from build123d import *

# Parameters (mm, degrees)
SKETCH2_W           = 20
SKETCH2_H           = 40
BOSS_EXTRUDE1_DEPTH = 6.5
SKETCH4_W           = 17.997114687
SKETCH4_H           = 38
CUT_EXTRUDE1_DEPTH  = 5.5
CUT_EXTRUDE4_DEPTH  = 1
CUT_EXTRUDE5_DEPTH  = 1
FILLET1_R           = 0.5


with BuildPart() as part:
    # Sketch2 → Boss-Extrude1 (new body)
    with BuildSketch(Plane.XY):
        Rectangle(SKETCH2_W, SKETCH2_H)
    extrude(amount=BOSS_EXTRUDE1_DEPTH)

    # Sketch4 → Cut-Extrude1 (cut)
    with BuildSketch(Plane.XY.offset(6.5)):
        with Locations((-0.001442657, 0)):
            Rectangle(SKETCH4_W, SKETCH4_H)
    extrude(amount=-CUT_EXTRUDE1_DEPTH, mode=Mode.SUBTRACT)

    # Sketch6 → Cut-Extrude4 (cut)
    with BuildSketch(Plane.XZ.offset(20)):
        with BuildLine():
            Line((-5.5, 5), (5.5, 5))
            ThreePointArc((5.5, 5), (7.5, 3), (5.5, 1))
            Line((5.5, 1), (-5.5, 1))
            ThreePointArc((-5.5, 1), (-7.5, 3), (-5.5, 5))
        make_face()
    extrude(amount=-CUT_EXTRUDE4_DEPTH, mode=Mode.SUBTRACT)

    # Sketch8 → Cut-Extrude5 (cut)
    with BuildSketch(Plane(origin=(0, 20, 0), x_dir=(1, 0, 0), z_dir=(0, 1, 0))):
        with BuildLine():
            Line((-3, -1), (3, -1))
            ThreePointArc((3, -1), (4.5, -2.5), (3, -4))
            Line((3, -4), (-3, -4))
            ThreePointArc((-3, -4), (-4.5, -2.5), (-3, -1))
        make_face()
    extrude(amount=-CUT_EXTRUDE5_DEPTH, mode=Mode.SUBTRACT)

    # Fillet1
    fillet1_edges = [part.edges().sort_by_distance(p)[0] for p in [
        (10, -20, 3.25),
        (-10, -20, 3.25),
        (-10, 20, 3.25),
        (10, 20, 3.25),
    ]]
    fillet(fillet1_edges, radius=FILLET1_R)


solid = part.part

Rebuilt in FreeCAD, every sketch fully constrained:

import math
import FreeCAD as App
import Part
import Sketcher
Q = App.Units.Quantity


def edges_at(feature, points):
    """Names of the edges that pass closest to the given points."""
    edges = feature.Shape.Edges
    near = lambda p: min(range(len(edges)), key=lambda i: edges[i].distToShape(Part.Vertex(*p))[0])
    return sorted({f"Edge{near(p) + 1}" for p in points})


def add_polygon(sketch, points):
    """Adds a closed chain of lines whose ends are joined by coincident constraints."""
    first, n = sketch.GeometryCount, len(points)
    for a, b in zip(points, points[1:] + points[:1]):
        sketch.addGeometry(Part.LineSegment(App.Vector(*a, 0), App.Vector(*b, 0)), False)
    for i in range(n):
        sketch.addConstraint(Sketcher.Constraint("Coincident", first + i, 2, first + (i + 1) % n, 1))

doc = App.newDocument("Part")
params = doc.addObject("Spreadsheet::Sheet", "Params")
for row, (alias, value) in enumerate([
    ("sketch1_width", "20 mm"),
    ("sketch1_height", "40 mm"),
    ("pad1_length", "6.5 mm"),
    ("sketch2_height", "38 mm"),
    ("pocket1_length", "5.5 mm"),
    ("sketch3_radius", "2 mm"),
    ("sketch3_width", "11 mm"),
    ("pocket2_length", "1 mm"),
    ("sketch4_radius", "1.5 mm"),
    ("sketch4_width", "6 mm"),
    ("pocket3_length", "1 mm"),
    ("fillet_radius", "0.5 mm"),
], start=1):
    params.set(f"A{row}", alias)
    params.set(f"B{row}", "=" + value)
    params.setAlias(f"B{row}", alias)

body = doc.addObject("PartDesign::Body", "Body")

# Sketch on XY plane
sketch1 = body.newObject("Sketcher::SketchObject", "Sketch")
sketch1.AttachmentSupport = (doc.getObject("XY_Plane"), [""])
sketch1.MapMode = "FlatFace"
add_polygon(sketch1, [(-10, 20), (-10, -20), (10, -20), (10, 20)])  # lines 0-3
sketch1.addConstraint([
    Sketcher.Constraint("Vertical", 0),
    Sketcher.Constraint("Horizontal", 1),
    Sketcher.Constraint("Vertical", 2),
    Sketcher.Constraint("Horizontal", 3),
    Sketcher.Constraint("Symmetric", 0, 2, 2, 2, -1, 1),
    Sketcher.Constraint("DistanceX", 1, 1, 1, 2, Q("20 mm")),
    Sketcher.Constraint("DistanceY", 0, 2, 0, 1, Q("40 mm")),
])
sketch1.setExpression("Constraints[9]", "Params.sketch1_width")
sketch1.setExpression("Constraints[10]", "Params.sketch1_height")
pad1 = body.newObject("PartDesign::Pad", "Pad")
pad1.Profile = sketch1
pad1.setExpression("Length", "Params.pad1_length")

# Sketch on XY plane
sketch2 = body.newObject("Sketcher::SketchObject", "Sketch001")
sketch2.AttachmentSupport = (doc.getObject("XY_Plane"), [""])
sketch2.MapMode = "FlatFace"
sketch2.AttachmentOffset = App.Placement(App.Vector(0, 0, 6.5), App.Rotation())
add_polygon(sketch2, [(-9, 19), (-9, -19), (9, -19), (9, 19)])  # lines 0-3
sketch2.addConstraint([
    Sketcher.Constraint("Vertical", 0),
    Sketcher.Constraint("Horizontal", 1),
    Sketcher.Constraint("Vertical", 2),
    Sketcher.Constraint("Horizontal", 3),
    Sketcher.Constraint("DistanceY", 0, 2, 0, 1, Q("38 mm")),
    Sketcher.Constraint("DistanceX", 0, 2, -1, 1, Q("9 mm")),
    Sketcher.Constraint("DistanceY", 0, 2, -1, 1, Q("19 mm")),
    Sketcher.Constraint("DistanceX", 1, 1, 1, 2, Q("17.997115 mm")),
])
sketch2.setExpression("Constraints[8]", "Params.sketch2_height")
pocket1 = body.newObject("PartDesign::Pocket", "Pocket")
pocket1.Profile = sketch2
pocket1.setExpression("Length", "Params.pocket1_length")

# Sketch on XZ plane
sketch3 = body.newObject("Sketcher::SketchObject", "Sketch002")
sketch3.AttachmentSupport = (doc.getObject("XZ_Plane"), [""])
sketch3.MapMode = "FlatFace"
sketch3.AttachmentOffset = App.Placement(App.Vector(0, 0, 20), App.Rotation())
sketch3.addGeometry([
    Part.LineSegment(App.Vector(5.5, 5, 0), App.Vector(-5.5, 5, 0)),
    Part.ArcOfCircle(Part.Circle(App.Vector(-5.5, 3, 0), App.Vector(0, 0, 1), 2), math.radians(90), math.radians(270)),
    Part.LineSegment(App.Vector(-5.5, 1, 0), App.Vector(5.5, 1, 0)),
    Part.ArcOfCircle(Part.Circle(App.Vector(5.5, 3, 0), App.Vector(0, 0, 1), 2), math.radians(-90), math.radians(90)),
], False)
sketch3.addConstraint([
    Sketcher.Constraint("Tangent", 0, 2, 1, 1),
    Sketcher.Constraint("Tangent", 1, 2, 2, 1),
    Sketcher.Constraint("Tangent", 2, 2, 3, 1),
    Sketcher.Constraint("Tangent", 3, 2, 0, 1),
    Sketcher.Constraint("Horizontal", 0),
    Sketcher.Constraint("Horizontal", 2),
    Sketcher.Constraint("Radius", 1, Q("2 mm")),
    Sketcher.Constraint("DistanceX", 0, 2, 0, 1, Q("11 mm")),
    Sketcher.Constraint("DistanceY", -1, 1, 1, 3, Q("3 mm")),
    Sketcher.Constraint("DistanceX", 1, 3, -1, 1, Q("5.5 mm")),
])
sketch3.setExpression("Constraints[6]", "Params.sketch3_radius")
sketch3.setExpression("Constraints[7]", "Params.sketch3_width")
pocket2 = body.newObject("PartDesign::Pocket", "Pocket001")
pocket2.Profile = sketch3
pocket2.setExpression("Length", "Params.pocket2_length")

# Sketch on XZ plane
sketch4 = body.newObject("Sketcher::SketchObject", "Sketch003")
sketch4.AttachmentSupport = (doc.getObject("XZ_Plane"), [""])
sketch4.MapMode = "FlatFace"
sketch4.AttachmentOffset = App.Placement(App.Vector(0, 0, -20), App.Rotation())
sketch4.addGeometry([
    Part.LineSegment(App.Vector(3, 1, 0), App.Vector(-3, 1, 0)),
    Part.ArcOfCircle(Part.Circle(App.Vector(-3, 2.5, 0), App.Vector(0, 0, 1), 1.5), math.radians(90), math.radians(270)),
    Part.LineSegment(App.Vector(-3, 4, 0), App.Vector(3, 4, 0)),
    Part.ArcOfCircle(Part.Circle(App.Vector(3, 2.5, 0), App.Vector(0, 0, 1), 1.5), math.radians(-90), math.radians(90)),
], False)
sketch4.addConstraint([
    Sketcher.Constraint("Tangent", 0, 2, 1, 2),
    Sketcher.Constraint("Tangent", 1, 1, 2, 1),
    Sketcher.Constraint("Tangent", 2, 2, 3, 2),
    Sketcher.Constraint("Tangent", 3, 1, 0, 1),
    Sketcher.Constraint("Horizontal", 0),
    Sketcher.Constraint("Horizontal", 2),
    Sketcher.Constraint("Radius", 1, Q("1.5 mm")),
    Sketcher.Constraint("DistanceX", 0, 2, 0, 1, Q("6 mm")),
    Sketcher.Constraint("DistanceX", 1, 3, -1, 1, Q("3 mm")),
    Sketcher.Constraint("DistanceY", -1, 1, 0, 2, Q("1 mm")),
])
sketch4.setExpression("Constraints[6]", "Params.sketch4_radius")
sketch4.setExpression("Constraints[7]", "Params.sketch4_width")
pocket3 = body.newObject("PartDesign::Pocket", "Pocket002")
pocket3.Profile = sketch4
pocket3.setExpression("Length", "Params.pocket3_length")
pocket3.Reversed = True
doc.recompute()

fillet = body.newObject("PartDesign::Fillet", "Fillet")
fillet.Base = (pocket3, edges_at(pocket3, [
    (10, -20, 3.25),
    (-10, -20, 3.25),
    (-10, 20, 3.25),
    (10, 20, 3.25),
]))
fillet.setExpression("Radius", "Params.fillet_radius")

doc.recompute()
